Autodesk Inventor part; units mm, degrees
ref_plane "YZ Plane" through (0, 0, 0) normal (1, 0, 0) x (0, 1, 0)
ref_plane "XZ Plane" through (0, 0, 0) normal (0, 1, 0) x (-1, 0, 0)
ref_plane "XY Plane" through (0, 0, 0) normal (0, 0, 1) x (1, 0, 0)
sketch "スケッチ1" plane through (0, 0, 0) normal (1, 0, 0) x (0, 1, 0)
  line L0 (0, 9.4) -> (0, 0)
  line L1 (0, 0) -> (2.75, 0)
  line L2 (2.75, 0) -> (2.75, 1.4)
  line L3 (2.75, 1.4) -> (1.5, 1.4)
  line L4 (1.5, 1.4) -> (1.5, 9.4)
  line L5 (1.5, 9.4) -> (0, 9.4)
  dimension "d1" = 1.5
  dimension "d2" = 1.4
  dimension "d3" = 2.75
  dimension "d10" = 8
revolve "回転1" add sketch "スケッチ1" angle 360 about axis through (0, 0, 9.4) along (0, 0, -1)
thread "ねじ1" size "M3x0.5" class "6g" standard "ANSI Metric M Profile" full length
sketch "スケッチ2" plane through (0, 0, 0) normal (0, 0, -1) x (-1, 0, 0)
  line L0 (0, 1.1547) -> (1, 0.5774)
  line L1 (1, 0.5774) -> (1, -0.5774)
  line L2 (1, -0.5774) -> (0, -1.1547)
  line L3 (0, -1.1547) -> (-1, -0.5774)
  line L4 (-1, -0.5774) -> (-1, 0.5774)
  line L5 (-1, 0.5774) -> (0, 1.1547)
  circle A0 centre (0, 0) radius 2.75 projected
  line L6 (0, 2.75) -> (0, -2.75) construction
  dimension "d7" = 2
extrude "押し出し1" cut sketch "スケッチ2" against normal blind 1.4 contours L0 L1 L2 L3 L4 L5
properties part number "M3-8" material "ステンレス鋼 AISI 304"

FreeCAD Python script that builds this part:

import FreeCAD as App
import Part
import Sketcher


def add_polygon(sketch, points):
    """Adds a closed chain of lines whose ends are joined by coincident constraints."""
    first, n = sketch.GeometryCount, len(points)
    for a, b in zip(points, points[1:] + points[:1]):
        sketch.addGeometry(Part.LineSegment(App.Vector(*a, 0), App.Vector(*b, 0)), False)
    for i in range(n):
        sketch.addConstraint(Sketcher.Constraint("Coincident", first + i, 2, first + (i + 1) % n, 1))

doc = App.newDocument("Part")
body = doc.addObject("PartDesign::Body", "Body")

# Sketch on YZ plane
sketch1 = body.newObject("Sketcher::SketchObject", "Sketch")
sketch1.AttachmentSupport = (doc.getObject("YZ_Plane"), [""])
sketch1.MapMode = "FlatFace"
add_polygon(sketch1, [(1.5, 9.4), (0, 9.4), (0, 0), (2.75, 0), (2.75, 1.4), (1.5, 1.4)])  # lines 0-5
sketch1.addConstraint([
    Sketcher.Constraint("Horizontal", 0),
    Sketcher.Constraint("Vertical", 1),
    Sketcher.Constraint("Horizontal", 2),
    Sketcher.Constraint("Vertical", 3),
    Sketcher.Constraint("Horizontal", 4),
    Sketcher.Constraint("Vertical", 5),
    Sketcher.Constraint("Coincident", 1, 2, -1, 1),
    Sketcher.Constraint("DistanceY", 5, 1, 5, 2, 8.0),
    Sketcher.Constraint("DistanceX", 0, 2, 0, 1, 1.5),
    Sketcher.Constraint("DistanceY", 3, 1, 3, 2, 1.4),
    Sketcher.Constraint("DistanceX", 2, 1, 2, 2, 2.75),
])
revolution = body.newObject("PartDesign::Revolution", "Revolution")
revolution.Profile = sketch1
revolution.ReferenceAxis = (sketch1, ["V_Axis"])
revolution.Angle = 360

# Sketch on XY plane
sketch2 = body.newObject("Sketcher::SketchObject", "Sketch001")
sketch2.AttachmentSupport = (doc.getObject("XY_Plane"), [""])
sketch2.MapMode = "FlatFace"
add_polygon(sketch2, [(-1, 0.5774), (0, 1.1547), (1, 0.5774), (1, -0.5774), (0, -1.1547), (-1, -0.5774)])  # lines 0-5
sketch2.addConstraint([
    Sketcher.Constraint("Vertical", 2),
    Sketcher.Constraint("Vertical", 5),
    Sketcher.Constraint("Symmetric", 0, 2, 3, 2, -1, 1),
    Sketcher.Constraint("Symmetric", 1, 2, 4, 2, -1, 1),
    Sketcher.Constraint("PointOnObject", 0, 2, -2),
    Sketcher.Constraint("Parallel", 0, 3),
    Sketcher.Constraint("Horizontal", 2, 2, 4, 2),
    Sketcher.Constraint("DistanceX", 4, 2, 2, 2, 2.0),
    Sketcher.Constraint("DistanceY", 2, 2, 2, 1, 1.1548),
    Sketcher.Constraint("DistanceY", 2, 2, 0, 2, 1.732),
])
pocket1 = body.newObject("PartDesign::Pocket", "Pocket")
pocket1.Profile = sketch2
pocket1.Length = 1.4
pocket1.Reversed = True

doc.recompute()
